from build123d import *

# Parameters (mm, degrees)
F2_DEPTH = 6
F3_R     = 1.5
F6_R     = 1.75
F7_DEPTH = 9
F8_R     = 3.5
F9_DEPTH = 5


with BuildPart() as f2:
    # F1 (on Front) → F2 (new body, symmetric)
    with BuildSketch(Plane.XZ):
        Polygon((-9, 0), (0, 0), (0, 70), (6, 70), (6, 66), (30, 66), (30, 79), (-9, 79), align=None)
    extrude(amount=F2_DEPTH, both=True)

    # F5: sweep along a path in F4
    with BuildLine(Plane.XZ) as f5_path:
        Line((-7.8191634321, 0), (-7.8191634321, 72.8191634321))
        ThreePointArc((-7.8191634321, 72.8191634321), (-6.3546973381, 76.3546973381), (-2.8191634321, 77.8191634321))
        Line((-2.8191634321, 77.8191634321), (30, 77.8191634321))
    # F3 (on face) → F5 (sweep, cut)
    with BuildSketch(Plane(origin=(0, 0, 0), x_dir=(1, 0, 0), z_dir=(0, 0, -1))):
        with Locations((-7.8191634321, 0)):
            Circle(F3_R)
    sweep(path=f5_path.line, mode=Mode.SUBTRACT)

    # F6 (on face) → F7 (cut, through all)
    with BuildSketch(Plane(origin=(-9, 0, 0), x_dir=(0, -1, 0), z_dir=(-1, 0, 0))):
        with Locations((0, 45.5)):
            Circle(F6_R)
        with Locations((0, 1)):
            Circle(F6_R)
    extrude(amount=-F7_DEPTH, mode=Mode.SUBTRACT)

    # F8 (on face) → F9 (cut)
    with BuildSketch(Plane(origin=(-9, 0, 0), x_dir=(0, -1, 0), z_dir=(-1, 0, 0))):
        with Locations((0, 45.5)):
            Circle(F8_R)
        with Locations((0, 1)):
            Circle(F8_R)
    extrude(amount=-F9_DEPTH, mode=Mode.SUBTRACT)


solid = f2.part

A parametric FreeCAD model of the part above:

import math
import FreeCAD as App
import Part
import Sketcher

V = App.Vector


def add_polygon(sketch, points):
    """Adds a closed chain of lines whose ends are joined by coincident constraints."""
    first, n = sketch.GeometryCount, len(points)
    for a, b in zip(points, points[1:] + points[:1]):
        sketch.addGeometry(Part.LineSegment(App.Vector(*a, 0), App.Vector(*b, 0)), False)
    for i in range(n):
        sketch.addConstraint(Sketcher.Constraint("Coincident", first + i, 2, first + (i + 1) % n, 1))

doc = App.newDocument("Part")
body = doc.addObject("PartDesign::Body", "Body")

# Sketch on XZ plane
sketch1 = body.newObject("Sketcher::SketchObject", "Sketch")
sketch1.AttachmentSupport = (doc.getObject("XZ_Plane"), [""])
sketch1.MapMode = "FlatFace"
add_polygon(sketch1, [(-9, 0), (0, 0), (0, 70), (6, 70), (6, 66), (30, 66), (30, 79), (-9, 79)])  # lines 0-7
sketch1.addConstraint([
    Sketcher.Constraint("Horizontal", 0),
    Sketcher.Constraint("Vertical", 1),
    Sketcher.Constraint("Horizontal", 2),
    Sketcher.Constraint("Vertical", 3),
    Sketcher.Constraint("Horizontal", 4),
    Sketcher.Constraint("Vertical", 5),
    Sketcher.Constraint("Horizontal", 6),
    Sketcher.Constraint("Vertical", 7),
    Sketcher.Constraint("Coincident", 0, 2, -1, 1),
    Sketcher.Constraint("DistanceX", 0, 1, 0, 2, 9.0),
    Sketcher.Constraint("DistanceX", 2, 1, 2, 2, 6.0),
    Sketcher.Constraint("DistanceX", 4, 1, 4, 2, 24.0),
    Sketcher.Constraint("DistanceY", 1, 1, 1, 2, 70.0),
    Sketcher.Constraint("DistanceY", 3, 2, 3, 1, 4.0),
    Sketcher.Constraint("DistanceY", 5, 1, 5, 2, 13.0),
])
pad1 = body.newObject("PartDesign::Pad", "Pad")
pad1.Profile = sketch1
pad1.Length = 12
pad1.Midplane = True

# Sketch on XY plane
sketch2 = body.newObject("Sketcher::SketchObject", "Sketch001")
sketch2.AttachmentSupport = (doc.getObject("XY_Plane"), [""])
sketch2.MapMode = "FlatFace"
sketch2.addGeometry(Part.Circle(V(-7.8, 0, 0), V(0, 0, 1), 1.5), False)
sketch2.addConstraint([
    Sketcher.Constraint("PointOnObject", 0, 3, -1),
    Sketcher.Constraint("Diameter", 0, 3.0),
    Sketcher.Constraint("DistanceX", 0, 3, -1, 1, 7.819163),
])

# Sketch on XZ plane
sketch3 = body.newObject("Sketcher::SketchObject", "Sketch002")
sketch3.AttachmentSupport = (doc.getObject("XZ_Plane"), [""])
sketch3.MapMode = "FlatFace"
sketch3.addGeometry([
    Part.LineSegment(V(-8, 0, 0), V(-8, 73, 0)),
    Part.ArcOfCircle(Part.Circle(V(-3, 73, 0), V(0, 0, 1), 5), math.radians(90), math.radians(180)),
    Part.LineSegment(V(-3, 78, 0), V(30, 78, 0)),
], False)
sketch3.addConstraint([
    Sketcher.Constraint("Tangent", 0, 2, 1, 2),
    Sketcher.Constraint("Tangent", 1, 1, 2, 1),
    Sketcher.Constraint("Vertical", 0),
    Sketcher.Constraint("Horizontal", 2),
    Sketcher.Constraint("PointOnObject", 0, 1, -1),
    Sketcher.Constraint("Radius", 1, 5.0),
    Sketcher.Constraint("DistanceX", -1, 1, 2, 2, 30.0),
    Sketcher.Constraint("DistanceX", 2, 1, 2, 2, 32.819163),
    Sketcher.Constraint("DistanceY", 0, 1, 0, 2, 72.819163),
])
doc.recompute()

subtractivepipe = body.newObject("PartDesign::SubtractivePipe", "SubtractivePipe")
subtractivepipe.Profile = sketch2
subtractivepipe.Spine = (sketch3, ["Edge1", "Edge2", "Edge3"])

# Sketch on YZ plane
sketch4 = body.newObject("Sketcher::SketchObject", "Sketch003")
sketch4.AttachmentSupport = (doc.getObject("YZ_Plane"), [""])
sketch4.MapMode = "FlatFace"
sketch4.AttachmentOffset = App.Placement(V(0, 0, -9), App.Rotation())
sketch4.addGeometry([
    Part.Circle(V(0, 45.5, 0), V(0, 0, 1), 1.8),
    Part.Circle(V(0, 1, 0), V(0, 0, 1), 1.8),
], False)
sketch4.addConstraint([
    Sketcher.Constraint("Equal", 0, 1),
    Sketcher.Constraint("PointOnObject", 0, 3, -2),
    Sketcher.Constraint("PointOnObject", 1, 3, -2),
    Sketcher.Constraint("Diameter", 0, 3.5),
    Sketcher.Constraint("DistanceY", -1, 1, 1, 3, 1.0),
    Sketcher.Constraint("DistanceY", -1, 1, 0, 3, 45.5),
])
pocket1 = body.newObject("PartDesign::Pocket", "Pocket")
pocket1.Profile = sketch4
pocket1.Type = "ThroughAll"
pocket1.Reversed = True

# Sketch on YZ plane
sketch5 = body.newObject("Sketcher::SketchObject", "Sketch004")
sketch5.AttachmentSupport = (doc.getObject("YZ_Plane"), [""])
sketch5.MapMode = "FlatFace"
sketch5.AttachmentOffset = App.Placement(V(0, 0, -9), App.Rotation())
sketch5.addGeometry([
    Part.Circle(V(0, 45.5, 0), V(0, 0, 1), 3.5),
    Part.Circle(V(0, 1, 0), V(0, 0, 1), 3.5),
], False)
sketch5.addConstraint([
    Sketcher.Constraint("Equal", 0, 1),
    Sketcher.Constraint("PointOnObject", 0, 3, -2),
    Sketcher.Constraint("PointOnObject", 1, 3, -2),
    Sketcher.Constraint("Diameter", 0, 7.0),
    Sketcher.Constraint("DistanceY", -1, 1, 1, 3, 1.0),
    Sketcher.Constraint("DistanceY", -1, 1, 0, 3, 45.5),
])
pocket2 = body.newObject("PartDesign::Pocket", "Pocket001")
pocket2.Profile = sketch5
pocket2.Length = 5
pocket2.Reversed = True

doc.recompute()
